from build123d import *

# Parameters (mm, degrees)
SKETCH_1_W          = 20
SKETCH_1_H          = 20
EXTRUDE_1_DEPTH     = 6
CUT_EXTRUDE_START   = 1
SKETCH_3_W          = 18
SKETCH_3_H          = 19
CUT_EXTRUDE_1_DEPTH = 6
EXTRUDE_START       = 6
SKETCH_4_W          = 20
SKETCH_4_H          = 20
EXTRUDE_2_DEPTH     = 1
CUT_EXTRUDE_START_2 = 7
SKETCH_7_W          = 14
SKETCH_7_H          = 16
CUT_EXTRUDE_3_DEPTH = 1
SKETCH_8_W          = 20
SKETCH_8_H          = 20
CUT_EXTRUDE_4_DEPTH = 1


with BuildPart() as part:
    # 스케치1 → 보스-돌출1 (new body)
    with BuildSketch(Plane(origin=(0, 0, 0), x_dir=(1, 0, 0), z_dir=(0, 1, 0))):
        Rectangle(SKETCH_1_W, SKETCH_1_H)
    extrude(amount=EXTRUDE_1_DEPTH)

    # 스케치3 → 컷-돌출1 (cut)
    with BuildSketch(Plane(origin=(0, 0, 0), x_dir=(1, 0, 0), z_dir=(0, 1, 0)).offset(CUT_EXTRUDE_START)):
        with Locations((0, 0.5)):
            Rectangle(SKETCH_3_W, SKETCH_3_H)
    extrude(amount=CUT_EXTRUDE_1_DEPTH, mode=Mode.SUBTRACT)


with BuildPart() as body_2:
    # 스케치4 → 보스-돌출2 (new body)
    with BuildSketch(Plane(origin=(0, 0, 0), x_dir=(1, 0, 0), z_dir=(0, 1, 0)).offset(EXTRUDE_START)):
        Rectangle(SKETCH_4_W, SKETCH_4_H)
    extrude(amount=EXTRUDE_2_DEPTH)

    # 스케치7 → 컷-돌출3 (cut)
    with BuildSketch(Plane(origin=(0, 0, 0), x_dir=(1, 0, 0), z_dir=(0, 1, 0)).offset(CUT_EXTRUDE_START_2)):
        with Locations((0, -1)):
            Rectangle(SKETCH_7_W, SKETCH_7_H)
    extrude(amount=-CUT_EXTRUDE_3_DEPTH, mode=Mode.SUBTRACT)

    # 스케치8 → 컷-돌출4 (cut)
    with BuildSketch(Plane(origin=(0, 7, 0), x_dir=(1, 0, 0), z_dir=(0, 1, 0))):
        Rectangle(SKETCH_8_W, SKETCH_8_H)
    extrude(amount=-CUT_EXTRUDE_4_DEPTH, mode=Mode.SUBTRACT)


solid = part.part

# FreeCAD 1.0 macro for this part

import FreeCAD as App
import Part
import Sketcher
Q = App.Units.Quantity

doc = App.newDocument("Part")
body = doc.addObject("PartDesign::Body", "Body")

sketch1 = body.newObject("Sketcher::SketchObject", "Sketch")
sketch1.AttachmentSupport = (doc.getObject("XZ_Plane"), [""])
sketch1.MapMode = "FlatFace"
sketch1.addGeometry([
    Part.LineSegment(App.Vector(-10, -10, 0), App.Vector(-10, 10, 0)),
    Part.LineSegment(App.Vector(-10, 10, 0), App.Vector(10, 10, 0)),
    Part.LineSegment(App.Vector(10, 10, 0), App.Vector(10, -10, 0)),
    Part.LineSegment(App.Vector(10, -10, 0), App.Vector(-10, -10, 0)),
], False)
sketch1.addConstraint([
    Sketcher.Constraint("Coincident", 0, 2, 1, 1),
    Sketcher.Constraint("Coincident", 1, 2, 2, 1),
    Sketcher.Constraint("Coincident", 2, 2, 3, 1),
    Sketcher.Constraint("Coincident", 3, 2, 0, 1),
    Sketcher.Constraint("Vertical", 0),
    Sketcher.Constraint("Horizontal", 1),
    Sketcher.Constraint("Vertical", 2),
    Sketcher.Constraint("Horizontal", 3),
    Sketcher.Constraint("Symmetric", 0, 2, 2, 2, -1, 1),
    Sketcher.Constraint("Equal", 3, 0),
    Sketcher.Constraint("DistanceX", 1, 1, 1, 2, Q("20 mm")),
])
pad1 = body.newObject("PartDesign::Pad", "Pad")
pad1.Profile = sketch1
pad1.Length = 6
pad1.Reversed = True

sketch2 = body.newObject("Sketcher::SketchObject", "Sketch001")
sketch2.AttachmentSupport = (doc.getObject("XZ_Plane"), [""])
sketch2.MapMode = "FlatFace"
sketch2.AttachmentOffset = App.Placement(App.Vector(0, 0, -1), App.Rotation())
sketch2.addGeometry([
    Part.LineSegment(App.Vector(-9, -10, 0), App.Vector(-9, 9, 0)),
    Part.LineSegment(App.Vector(-9, 9, 0), App.Vector(9, 9, 0)),
    Part.LineSegment(App.Vector(9, 9, 0), App.Vector(9, -10, 0)),
    Part.LineSegment(App.Vector(9, -10, 0), App.Vector(-9, -10, 0)),
], False)
sketch2.addConstraint([
    Sketcher.Constraint("Coincident", 0, 2, 1, 1),
    Sketcher.Constraint("Coincident", 1, 2, 2, 1),
    Sketcher.Constraint("Coincident", 2, 2, 3, 1),
    Sketcher.Constraint("Coincident", 3, 2, 0, 1),
    Sketcher.Constraint("Vertical", 0),
    Sketcher.Constraint("Horizontal", 1),
    Sketcher.Constraint("Vertical", 2),
    Sketcher.Constraint("Horizontal", 3),
    Sketcher.Constraint("DistanceX", 1, 1, 1, 2, Q("18 mm")),
    Sketcher.Constraint("DistanceY", 0, 1, 0, 2, Q("19 mm")),
    Sketcher.Constraint("DistanceX", 0, 2, -1, 1, Q("9 mm")),
    Sketcher.Constraint("DistanceY", -1, 1, 0, 2, Q("9 mm")),
])
pocket1 = body.newObject("PartDesign::Pocket", "Pocket")
pocket1.Profile = sketch2
pocket1.Length = 6
body2 = doc.addObject("PartDesign::Body", "Body001")

sketch3 = body2.newObject("Sketcher::SketchObject", "Sketch002")
sketch3.AttachmentSupport = (doc.getObject("XZ_Plane001"), [""])
sketch3.MapMode = "FlatFace"
sketch3.AttachmentOffset = App.Placement(App.Vector(0, 0, -6), App.Rotation())
sketch3.addGeometry([
    Part.LineSegment(App.Vector(-10, -10, 0), App.Vector(-10, 10, 0)),
    Part.LineSegment(App.Vector(-10, 10, 0), App.Vector(10, 10, 0)),
    Part.LineSegment(App.Vector(10, 10, 0), App.Vector(10, -10, 0)),
    Part.LineSegment(App.Vector(10, -10, 0), App.Vector(-10, -10, 0)),
], False)
sketch3.addConstraint([
    Sketcher.Constraint("Coincident", 0, 2, 1, 1),
    Sketcher.Constraint("Coincident", 1, 2, 2, 1),
    Sketcher.Constraint("Coincident", 2, 2, 3, 1),
    Sketcher.Constraint("Coincident", 3, 2, 0, 1),
    Sketcher.Constraint("Vertical", 0),
    Sketcher.Constraint("Horizontal", 1),
    Sketcher.Constraint("Vertical", 2),
    Sketcher.Constraint("Horizontal", 3),
    Sketcher.Constraint("Symmetric", 0, 2, 2, 2, -1, 1),
    Sketcher.Constraint("Equal", 3, 0),
    Sketcher.Constraint("DistanceX", 1, 1, 1, 2, Q("20 mm")),
])
pad2 = body2.newObject("PartDesign::Pad", "Pad001")
pad2.Profile = sketch3
pad2.Length = 1
pad2.Reversed = True

sketch4 = body2.newObject("Sketcher::SketchObject", "Sketch003")
sketch4.AttachmentSupport = (doc.getObject("XZ_Plane001"), [""])
sketch4.MapMode = "FlatFace"
sketch4.AttachmentOffset = App.Placement(App.Vector(0, 0, -7), App.Rotation())
sketch4.addGeometry([
    Part.LineSegment(App.Vector(-7, -7, 0), App.Vector(-7, 9, 0)),
    Part.LineSegment(App.Vector(-7, 9, 0), App.Vector(7, 9, 0)),
    Part.LineSegment(App.Vector(7, 9, 0), App.Vector(7, -7, 0)),
    Part.LineSegment(App.Vector(7, -7, 0), App.Vector(-7, -7, 0)),
], False)
sketch4.addConstraint([
    Sketcher.Constraint("Coincident", 0, 2, 1, 1),
    Sketcher.Constraint("Coincident", 1, 2, 2, 1),
    Sketcher.Constraint("Coincident", 2, 2, 3, 1),
    Sketcher.Constraint("Coincident", 3, 2, 0, 1),
    Sketcher.Constraint("Vertical", 0),
    Sketcher.Constraint("Horizontal", 1),
    Sketcher.Constraint("Vertical", 2),
    Sketcher.Constraint("Horizontal", 3),
    Sketcher.Constraint("DistanceX", 1, 1, 1, 2, Q("14 mm")),
    Sketcher.Constraint("DistanceY", 0, 1, 0, 2, Q("16 mm")),
    Sketcher.Constraint("DistanceX", 0, 2, -1, 1, Q("7 mm")),
    Sketcher.Constraint("DistanceY", -1, 1, 0, 2, Q("9 mm")),
])
pocket2 = body2.newObject("PartDesign::Pocket", "Pocket001")
pocket2.Profile = sketch4
pocket2.Length = 1
pocket2.Reversed = True

sketch5 = body2.newObject("Sketcher::SketchObject", "Sketch004")
sketch5.AttachmentSupport = (doc.getObject("XZ_Plane001"), [""])
sketch5.MapMode = "FlatFace"
sketch5.AttachmentOffset = App.Placement(App.Vector(0, 0, -7), App.Rotation())
sketch5.addGeometry([
    Part.LineSegment(App.Vector(-10, -10, 0), App.Vector(-10, 10, 0)),
    Part.LineSegment(App.Vector(-10, 10, 0), App.Vector(10, 10, 0)),
    Part.LineSegment(App.Vector(10, 10, 0), App.Vector(10, -10, 0)),
    Part.LineSegment(App.Vector(10, -10, 0), App.Vector(-10, -10, 0)),
], False)
sketch5.addConstraint([
    Sketcher.Constraint("Coincident", 0, 2, 1, 1),
    Sketcher.Constraint("Coincident", 1, 2, 2, 1),
    Sketcher.Constraint("Coincident", 2, 2, 3, 1),
    Sketcher.Constraint("Coincident", 3, 2, 0, 1),
    Sketcher.Constraint("Vertical", 0),
    Sketcher.Constraint("Horizontal", 1),
    Sketcher.Constraint("Vertical", 2),
    Sketcher.Constraint("Horizontal", 3),
    Sketcher.Constraint("Symmetric", 0, 2, 2, 2, -1, 1),
    Sketcher.Constraint("Equal", 3, 0),
    Sketcher.Constraint("DistanceX", 1, 1, 1, 2, Q("20 mm")),
])
pocket3 = body2.newObject("PartDesign::Pocket", "Pocket002")
pocket3.Profile = sketch5
pocket3.Length = 1
pocket3.Reversed = True

doc.recompute()
